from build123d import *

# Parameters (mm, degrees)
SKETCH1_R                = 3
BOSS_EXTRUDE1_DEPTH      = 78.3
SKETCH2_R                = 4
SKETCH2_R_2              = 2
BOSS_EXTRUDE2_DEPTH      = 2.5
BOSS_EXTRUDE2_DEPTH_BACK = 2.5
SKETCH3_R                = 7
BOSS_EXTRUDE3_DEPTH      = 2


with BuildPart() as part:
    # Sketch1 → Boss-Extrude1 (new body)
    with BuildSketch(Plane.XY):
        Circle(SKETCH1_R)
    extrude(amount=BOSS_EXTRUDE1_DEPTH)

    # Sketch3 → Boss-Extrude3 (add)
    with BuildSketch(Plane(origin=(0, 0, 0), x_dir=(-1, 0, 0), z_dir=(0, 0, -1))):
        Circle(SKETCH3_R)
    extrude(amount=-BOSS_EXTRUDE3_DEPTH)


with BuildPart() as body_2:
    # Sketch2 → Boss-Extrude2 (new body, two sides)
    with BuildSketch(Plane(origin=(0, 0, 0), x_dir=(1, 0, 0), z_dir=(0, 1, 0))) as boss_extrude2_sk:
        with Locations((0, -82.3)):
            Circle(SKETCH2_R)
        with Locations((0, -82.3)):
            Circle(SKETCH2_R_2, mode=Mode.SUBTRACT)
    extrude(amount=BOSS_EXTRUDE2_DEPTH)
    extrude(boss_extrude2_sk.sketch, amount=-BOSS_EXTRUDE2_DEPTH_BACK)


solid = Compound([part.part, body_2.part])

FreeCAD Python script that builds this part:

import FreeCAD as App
import Part
import Sketcher

doc = App.newDocument("Part")
body = doc.addObject("PartDesign::Body", "Body")

sketch1 = body.newObject("Sketcher::SketchObject", "Sketch")
sketch1.AttachmentSupport = (doc.getObject("XY_Plane"), [""])
sketch1.MapMode = "FlatFace"
sketch1.addGeometry(Part.Circle(App.Vector(0, 0, 0), App.Vector(0, 0, 1), 3), False)
sketch1.addConstraint([
    Sketcher.Constraint("Coincident", 0, 3, -1, 1),
    Sketcher.Constraint("Diameter", 0, 6.0),
])
pad1 = body.newObject("PartDesign::Pad", "Pad")
pad1.Profile = sketch1
pad1.Length = 78.3

sketch2 = body.newObject("Sketcher::SketchObject", "Sketch001")
sketch2.AttachmentSupport = (doc.getObject("XY_Plane"), [""])
sketch2.MapMode = "FlatFace"
sketch2.addGeometry(Part.Circle(App.Vector(0, 0, 0), App.Vector(0, 0, 1), 7), False)
sketch2.addConstraint([
    Sketcher.Constraint("Coincident", 0, 3, -1, 1),
    Sketcher.Constraint("Diameter", 0, 14.0),
])
pad2 = body.newObject("PartDesign::Pad", "Pad001")
pad2.Profile = sketch2
pad2.Length = 2
body2 = doc.addObject("PartDesign::Body", "Body001")

sketch3 = body2.newObject("Sketcher::SketchObject", "Sketch002")
sketch3.AttachmentSupport = (doc.getObject("XZ_Plane001"), [""])
sketch3.MapMode = "FlatFace"
sketch3.addGeometry([
    Part.Circle(App.Vector(0, 82.3, 0), App.Vector(0, 0, 1), 4),
    Part.Circle(App.Vector(0, 82.3, 0), App.Vector(0, 0, 1), 2),
], False)
sketch3.addConstraint([
    Sketcher.Constraint("Coincident", 1, 3, 0, 3),
    Sketcher.Constraint("PointOnObject", 0, 3, -2),
    Sketcher.Constraint("Diameter", 0, 8.0),
    Sketcher.Constraint("Diameter", 1, 4.0),
    Sketcher.Constraint("DistanceY", -1, 1, 0, 3, 82.3),
])
pad3 = body2.newObject("PartDesign::Pad", "Pad002")
pad3.Profile = sketch3
pad3.Type = "TwoLengths"
pad3.Length = 2.5
pad3.Length2 = 2.5
pad3.Reversed = True

doc.recompute()
